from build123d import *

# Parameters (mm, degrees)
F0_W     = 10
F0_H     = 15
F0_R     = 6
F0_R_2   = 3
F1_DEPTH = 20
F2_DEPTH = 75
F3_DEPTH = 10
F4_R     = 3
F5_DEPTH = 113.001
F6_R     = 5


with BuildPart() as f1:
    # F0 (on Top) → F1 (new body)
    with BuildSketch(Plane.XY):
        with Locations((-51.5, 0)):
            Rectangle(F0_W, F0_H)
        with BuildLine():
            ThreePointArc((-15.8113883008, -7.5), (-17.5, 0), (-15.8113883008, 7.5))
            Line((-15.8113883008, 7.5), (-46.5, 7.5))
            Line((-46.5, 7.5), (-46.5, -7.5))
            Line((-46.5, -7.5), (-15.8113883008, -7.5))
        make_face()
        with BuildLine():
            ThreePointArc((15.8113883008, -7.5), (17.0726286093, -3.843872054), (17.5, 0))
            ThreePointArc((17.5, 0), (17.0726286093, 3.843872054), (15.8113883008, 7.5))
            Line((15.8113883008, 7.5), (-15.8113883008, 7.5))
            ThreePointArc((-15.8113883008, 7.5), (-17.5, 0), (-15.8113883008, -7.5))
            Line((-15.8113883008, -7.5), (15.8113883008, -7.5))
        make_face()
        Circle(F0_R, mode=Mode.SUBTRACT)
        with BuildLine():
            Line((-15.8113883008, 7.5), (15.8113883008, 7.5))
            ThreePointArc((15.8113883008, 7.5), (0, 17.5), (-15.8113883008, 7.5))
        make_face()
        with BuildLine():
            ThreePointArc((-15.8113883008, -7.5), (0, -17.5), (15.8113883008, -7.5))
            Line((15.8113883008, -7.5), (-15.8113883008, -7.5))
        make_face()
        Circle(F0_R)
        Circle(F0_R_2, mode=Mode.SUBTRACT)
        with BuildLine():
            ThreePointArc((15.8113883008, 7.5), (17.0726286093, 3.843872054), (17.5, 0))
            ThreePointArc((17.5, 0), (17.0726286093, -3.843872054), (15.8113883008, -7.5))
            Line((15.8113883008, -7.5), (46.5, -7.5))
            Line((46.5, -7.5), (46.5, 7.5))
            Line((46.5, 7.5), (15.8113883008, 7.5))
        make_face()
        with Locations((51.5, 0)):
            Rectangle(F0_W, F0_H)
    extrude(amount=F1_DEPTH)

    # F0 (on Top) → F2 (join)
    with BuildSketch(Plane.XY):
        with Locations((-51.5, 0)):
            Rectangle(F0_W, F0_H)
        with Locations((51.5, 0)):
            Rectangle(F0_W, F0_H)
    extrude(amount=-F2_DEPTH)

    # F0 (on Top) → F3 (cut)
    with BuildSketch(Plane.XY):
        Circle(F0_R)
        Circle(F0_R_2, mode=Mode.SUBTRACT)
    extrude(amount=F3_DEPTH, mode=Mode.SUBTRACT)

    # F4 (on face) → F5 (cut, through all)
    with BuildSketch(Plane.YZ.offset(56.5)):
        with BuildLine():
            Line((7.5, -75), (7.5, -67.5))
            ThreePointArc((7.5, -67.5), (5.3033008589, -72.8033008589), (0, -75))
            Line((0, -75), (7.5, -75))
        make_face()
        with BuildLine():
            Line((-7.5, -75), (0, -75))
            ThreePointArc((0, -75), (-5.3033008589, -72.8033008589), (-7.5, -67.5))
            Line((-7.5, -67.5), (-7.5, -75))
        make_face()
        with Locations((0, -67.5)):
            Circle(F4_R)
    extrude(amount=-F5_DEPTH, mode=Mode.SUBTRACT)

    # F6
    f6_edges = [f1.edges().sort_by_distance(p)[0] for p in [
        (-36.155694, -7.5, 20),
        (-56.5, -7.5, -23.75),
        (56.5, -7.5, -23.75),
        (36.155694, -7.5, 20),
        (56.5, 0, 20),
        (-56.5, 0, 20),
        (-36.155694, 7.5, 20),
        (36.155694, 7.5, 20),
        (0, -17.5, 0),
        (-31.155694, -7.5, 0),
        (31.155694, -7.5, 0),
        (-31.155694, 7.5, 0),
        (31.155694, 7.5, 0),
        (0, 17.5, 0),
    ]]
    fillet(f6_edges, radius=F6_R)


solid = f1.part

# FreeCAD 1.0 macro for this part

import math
import FreeCAD as App
import Part
import Sketcher

V = App.Vector
Q = App.Units.Quantity


def edges_at(feature, points):
    """Names of the edges that pass closest to the given points."""
    edges = feature.Shape.Edges
    near = lambda p: min(range(len(edges)), key=lambda i: edges[i].distToShape(Part.Vertex(*p))[0])
    return sorted({f"Edge{near(p) + 1}" for p in points})

doc = App.newDocument("Part")
body = doc.addObject("PartDesign::Body", "Body")

sketch1 = body.newObject("Sketcher::SketchObject", "Sketch")
sketch1.AttachmentSupport = (doc.getObject("XY_Plane"), [""])
sketch1.MapMode = "FlatFace"
sketch1.addGeometry(Part.LineSegment(V(-56.5, 7.5, 0), V(-56.5, -7.5, 0)), False)
sketch1.addGeometry(Part.LineSegment(V(-56.5, -7.5, 0), V(-15.8, -7.5, 0)), False)
sketch1.addGeometry(Part.ArcOfCircle(Part.Circle(V(0, 0, 0), V(0, 0, 1), 17.5), math.radians(-155), math.radians(-25)), False)
sketch1.addGeometry(Part.LineSegment(V(15.8, -7.5, 0), V(56.5, -7.5, 0)), False)
sketch1.addGeometry(Part.LineSegment(V(56.5, -7.5, 0), V(56.5, 7.5, 0)), False)
sketch1.addGeometry(Part.LineSegment(V(56.5, 7.5, 0), V(15.8, 7.5, 0)), False)
sketch1.addGeometry(Part.ArcOfCircle(Part.Circle(V(0, 0, 0), V(0, 0, 1), 17.5), math.radians(25), math.radians(155)), False)
sketch1.addGeometry(Part.LineSegment(V(-15.8, 7.5, 0), V(-56.5, 7.5, 0)), False)
sketch1.addGeometry(Part.Circle(V(0, 0, 0), V(0, 0, 1), 3), False)
sketch1.addConstraint(Sketcher.Constraint("Coincident", 0, 2, 1, 1))
sketch1.addConstraint(Sketcher.Constraint("Coincident", 1, 2, 2, 1))
sketch1.addConstraint(Sketcher.Constraint("Coincident", 2, 2, 3, 1))
sketch1.addConstraint(Sketcher.Constraint("Coincident", 3, 2, 4, 1))
sketch1.addConstraint(Sketcher.Constraint("Coincident", 4, 2, 5, 1))
sketch1.addConstraint(Sketcher.Constraint("Coincident", 5, 2, 6, 1))
sketch1.addConstraint(Sketcher.Constraint("Coincident", 6, 2, 7, 1))
sketch1.addConstraint(Sketcher.Constraint("Coincident", 7, 2, 0, 1))
sketch1.addConstraint(Sketcher.Constraint("Vertical", 0))
sketch1.addConstraint(Sketcher.Constraint("Horizontal", 1))
sketch1.addConstraint(Sketcher.Constraint("Horizontal", 3))
sketch1.addConstraint(Sketcher.Constraint("Vertical", 4))
sketch1.addConstraint(Sketcher.Constraint("Horizontal", 5))
sketch1.addConstraint(Sketcher.Constraint("Horizontal", 7))
sketch1.addConstraint(Sketcher.Constraint("Coincident", 2, 3, -1, 1))
sketch1.addConstraint(Sketcher.Constraint("Coincident", 6, 3, -1, 1))
sketch1.addConstraint(Sketcher.Constraint("Coincident", 8, 3, -1, 1))
sketch1.addConstraint(Sketcher.Constraint("Equal", 2, 6))
sketch1.addConstraint(Sketcher.Constraint("Symmetric", 0, 2, 4, 2, -1, 1))
sketch1.addConstraint(Sketcher.Constraint("Horizontal", 1, 2, 2, 2))
sketch1.addConstraint(Sketcher.Constraint("Horizontal", 5, 2, 6, 2))
sketch1.addConstraint(Sketcher.Constraint("Diameter", 8, Q("6 mm")))
sketch1.addConstraint(Sketcher.Constraint("Radius", 2, Q("17.5 mm")))
sketch1.addConstraint(Sketcher.Constraint("DistanceY", 0, 2, 0, 1, Q("15 mm")))
sketch1.addConstraint(Sketcher.Constraint("DistanceX", 0, 2, -1, 1, Q("56.5 mm")))
pad1 = body.newObject("PartDesign::Pad", "Pad")
pad1.Profile = sketch1
pad1.Length = 20

sketch2 = body.newObject("Sketcher::SketchObject", "Sketch001")
sketch2.AttachmentSupport = (doc.getObject("XY_Plane"), [""])
sketch2.MapMode = "FlatFace"
sketch2.addGeometry(Part.LineSegment(V(-56, 8, 0), V(-56, -8, 0)), False)
sketch2.addGeometry(Part.LineSegment(V(-56, -8, 0), V(-46, -8, 0)), False)
sketch2.addGeometry(Part.LineSegment(V(-46, -8, 0), V(-46, 8, 0)), False)
sketch2.addGeometry(Part.LineSegment(V(-46, 8, 0), V(-56, 8, 0)), False)
sketch2.addGeometry(Part.LineSegment(V(46, 8, 0), V(46, -8, 0)), False)
sketch2.addGeometry(Part.LineSegment(V(46, -8, 0), V(56, -8, 0)), False)
sketch2.addGeometry(Part.LineSegment(V(56, -8, 0), V(56, 8, 0)), False)
sketch2.addGeometry(Part.LineSegment(V(56, 8, 0), V(46, 8, 0)), False)
sketch2.addConstraint(Sketcher.Constraint("Coincident", 0, 2, 1, 1))
sketch2.addConstraint(Sketcher.Constraint("Coincident", 1, 2, 2, 1))
sketch2.addConstraint(Sketcher.Constraint("Coincident", 2, 2, 3, 1))
sketch2.addConstraint(Sketcher.Constraint("Coincident", 3, 2, 0, 1))
sketch2.addConstraint(Sketcher.Constraint("Coincident", 4, 2, 5, 1))
sketch2.addConstraint(Sketcher.Constraint("Coincident", 5, 2, 6, 1))
sketch2.addConstraint(Sketcher.Constraint("Coincident", 6, 2, 7, 1))
sketch2.addConstraint(Sketcher.Constraint("Coincident", 7, 2, 4, 1))
sketch2.addConstraint(Sketcher.Constraint("Vertical", 0))
sketch2.addConstraint(Sketcher.Constraint("Horizontal", 1))
sketch2.addConstraint(Sketcher.Constraint("Vertical", 2))
sketch2.addConstraint(Sketcher.Constraint("Horizontal", 3))
sketch2.addConstraint(Sketcher.Constraint("Vertical", 4))
sketch2.addConstraint(Sketcher.Constraint("Horizontal", 5))
sketch2.addConstraint(Sketcher.Constraint("Vertical", 6))
sketch2.addConstraint(Sketcher.Constraint("Horizontal", 7))
sketch2.addConstraint(Sketcher.Constraint("Symmetric", 2, 2, 4, 2, -1, 1))
sketch2.addConstraint(Sketcher.Constraint("Symmetric", 0, 2, 6, 2, -1, 1))
sketch2.addConstraint(Sketcher.Constraint("Horizontal", 1, 2, 4, 2))
sketch2.addConstraint(Sketcher.Constraint("DistanceX", 1, 1, 1, 2, Q("10 mm")))
sketch2.addConstraint(Sketcher.Constraint("DistanceY", 0, 2, 0, 1, Q("15 mm")))
sketch2.addConstraint(Sketcher.Constraint("DistanceX", 1, 2, 4, 2, Q("93 mm")))
pad2 = body.newObject("PartDesign::Pad", "Pad001")
pad2.Profile = sketch2
pad2.Length = 75
pad2.Reversed = True

sketch3 = body.newObject("Sketcher::SketchObject", "Sketch002")
sketch3.AttachmentSupport = (doc.getObject("XY_Plane"), [""])
sketch3.MapMode = "FlatFace"
sketch3.addGeometry(Part.Circle(V(0, 0, 0), V(0, 0, 1), 6), False)
sketch3.addGeometry(Part.Circle(V(0, 0, 0), V(0, 0, 1), 3), False)
sketch3.addConstraint(Sketcher.Constraint("Coincident", 0, 3, -1, 1))
sketch3.addConstraint(Sketcher.Constraint("Coincident", 1, 3, -1, 1))
sketch3.addConstraint(Sketcher.Constraint("Diameter", 0, Q("12 mm")))
sketch3.addConstraint(Sketcher.Constraint("Diameter", 1, Q("6 mm")))
pocket1 = body.newObject("PartDesign::Pocket", "Pocket")
pocket1.Profile = sketch3
pocket1.Length = 10
pocket1.Reversed = True

sketch4 = body.newObject("Sketcher::SketchObject", "Sketch003")
sketch4.AttachmentSupport = (doc.getObject("YZ_Plane"), [""])
sketch4.MapMode = "FlatFace"
sketch4.AttachmentOffset = App.Placement(V(0, 0, 56.5), App.Rotation())
sketch4.addGeometry(Part.LineSegment(V(7.5, -75, 0), V(7.5, -67.5, 0)), False)
sketch4.addGeometry(Part.ArcOfCircle(Part.Circle(V(0, -67.5, 0), V(0, 0, 1), 7.5), math.radians(-90), math.radians(0)), False)
sketch4.addGeometry(Part.LineSegment(V(0, -75, 0), V(7.5, -75, 0)), False)
sketch4.addGeometry(Part.LineSegment(V(-7.5, -75, 0), V(0, -75, 0)), False)
sketch4.addGeometry(Part.ArcOfCircle(Part.Circle(V(0, -67.5, 0), V(0, 0, 1), 7.5), math.radians(180), math.radians(270)), False)
sketch4.addGeometry(Part.LineSegment(V(-7.5, -67.5, 0), V(-7.5, -75, 0)), False)
sketch4.addGeometry(Part.Circle(V(0, -67.5, 0), V(0, 0, 1), 3), False)
sketch4.addConstraint(Sketcher.Constraint("Tangent", 0, 2, 1, 2))
sketch4.addConstraint(Sketcher.Constraint("Tangent", 1, 1, 2, 1))
sketch4.addConstraint(Sketcher.Constraint("Coincident", 2, 2, 0, 1))
sketch4.addConstraint(Sketcher.Constraint("Tangent", 3, 2, 4, 2))
sketch4.addConstraint(Sketcher.Constraint("Tangent", 4, 1, 5, 1))
sketch4.addConstraint(Sketcher.Constraint("Coincident", 5, 2, 3, 1))
sketch4.addConstraint(Sketcher.Constraint("Vertical", 0))
sketch4.addConstraint(Sketcher.Constraint("Horizontal", 2))
sketch4.addConstraint(Sketcher.Constraint("Horizontal", 3))
sketch4.addConstraint(Sketcher.Constraint("Vertical", 5))
sketch4.addConstraint(Sketcher.Constraint("Coincident", 4, 3, 1, 3))
sketch4.addConstraint(Sketcher.Constraint("Coincident", 6, 3, 1, 3))
sketch4.addConstraint(Sketcher.Constraint("Equal", 1, 4))
sketch4.addConstraint(Sketcher.Constraint("PointOnObject", 1, 3, -2))
sketch4.addConstraint(Sketcher.Constraint("Diameter", 6, Q("6 mm")))
sketch4.addConstraint(Sketcher.Constraint("Radius", 1, Q("7.5 mm")))
sketch4.addConstraint(Sketcher.Constraint("DistanceY", 1, 1, -1, 1, Q("75 mm")))
pocket2 = body.newObject("PartDesign::Pocket", "Pocket001")
pocket2.Profile = sketch4
pocket2.Type = "ThroughAll"
doc.recompute()

fillet = body.newObject("PartDesign::Fillet", "Fillet")
fillet.Base = (pocket2, edges_at(pocket2, [
    (-36.156, -7.5, 20),
    (-56.5, -7.5, -23.75),
    (56.5, -7.5, -23.75),
    (36.156, -7.5, 20),
    (56.5, 0, 20),
    (-56.5, 0, 20),
    (-36.156, 7.5, 20),
    (36.156, 7.5, 20),
    (0, -17.5, 0),
    (-31.156, -7.5, 0),
    (31.156, -7.5, 0),
    (-31.156, 7.5, 0),
    (31.156, 7.5, 0),
    (0, 17.5, 0),
]))
fillet.Radius = 5

doc.recompute()
